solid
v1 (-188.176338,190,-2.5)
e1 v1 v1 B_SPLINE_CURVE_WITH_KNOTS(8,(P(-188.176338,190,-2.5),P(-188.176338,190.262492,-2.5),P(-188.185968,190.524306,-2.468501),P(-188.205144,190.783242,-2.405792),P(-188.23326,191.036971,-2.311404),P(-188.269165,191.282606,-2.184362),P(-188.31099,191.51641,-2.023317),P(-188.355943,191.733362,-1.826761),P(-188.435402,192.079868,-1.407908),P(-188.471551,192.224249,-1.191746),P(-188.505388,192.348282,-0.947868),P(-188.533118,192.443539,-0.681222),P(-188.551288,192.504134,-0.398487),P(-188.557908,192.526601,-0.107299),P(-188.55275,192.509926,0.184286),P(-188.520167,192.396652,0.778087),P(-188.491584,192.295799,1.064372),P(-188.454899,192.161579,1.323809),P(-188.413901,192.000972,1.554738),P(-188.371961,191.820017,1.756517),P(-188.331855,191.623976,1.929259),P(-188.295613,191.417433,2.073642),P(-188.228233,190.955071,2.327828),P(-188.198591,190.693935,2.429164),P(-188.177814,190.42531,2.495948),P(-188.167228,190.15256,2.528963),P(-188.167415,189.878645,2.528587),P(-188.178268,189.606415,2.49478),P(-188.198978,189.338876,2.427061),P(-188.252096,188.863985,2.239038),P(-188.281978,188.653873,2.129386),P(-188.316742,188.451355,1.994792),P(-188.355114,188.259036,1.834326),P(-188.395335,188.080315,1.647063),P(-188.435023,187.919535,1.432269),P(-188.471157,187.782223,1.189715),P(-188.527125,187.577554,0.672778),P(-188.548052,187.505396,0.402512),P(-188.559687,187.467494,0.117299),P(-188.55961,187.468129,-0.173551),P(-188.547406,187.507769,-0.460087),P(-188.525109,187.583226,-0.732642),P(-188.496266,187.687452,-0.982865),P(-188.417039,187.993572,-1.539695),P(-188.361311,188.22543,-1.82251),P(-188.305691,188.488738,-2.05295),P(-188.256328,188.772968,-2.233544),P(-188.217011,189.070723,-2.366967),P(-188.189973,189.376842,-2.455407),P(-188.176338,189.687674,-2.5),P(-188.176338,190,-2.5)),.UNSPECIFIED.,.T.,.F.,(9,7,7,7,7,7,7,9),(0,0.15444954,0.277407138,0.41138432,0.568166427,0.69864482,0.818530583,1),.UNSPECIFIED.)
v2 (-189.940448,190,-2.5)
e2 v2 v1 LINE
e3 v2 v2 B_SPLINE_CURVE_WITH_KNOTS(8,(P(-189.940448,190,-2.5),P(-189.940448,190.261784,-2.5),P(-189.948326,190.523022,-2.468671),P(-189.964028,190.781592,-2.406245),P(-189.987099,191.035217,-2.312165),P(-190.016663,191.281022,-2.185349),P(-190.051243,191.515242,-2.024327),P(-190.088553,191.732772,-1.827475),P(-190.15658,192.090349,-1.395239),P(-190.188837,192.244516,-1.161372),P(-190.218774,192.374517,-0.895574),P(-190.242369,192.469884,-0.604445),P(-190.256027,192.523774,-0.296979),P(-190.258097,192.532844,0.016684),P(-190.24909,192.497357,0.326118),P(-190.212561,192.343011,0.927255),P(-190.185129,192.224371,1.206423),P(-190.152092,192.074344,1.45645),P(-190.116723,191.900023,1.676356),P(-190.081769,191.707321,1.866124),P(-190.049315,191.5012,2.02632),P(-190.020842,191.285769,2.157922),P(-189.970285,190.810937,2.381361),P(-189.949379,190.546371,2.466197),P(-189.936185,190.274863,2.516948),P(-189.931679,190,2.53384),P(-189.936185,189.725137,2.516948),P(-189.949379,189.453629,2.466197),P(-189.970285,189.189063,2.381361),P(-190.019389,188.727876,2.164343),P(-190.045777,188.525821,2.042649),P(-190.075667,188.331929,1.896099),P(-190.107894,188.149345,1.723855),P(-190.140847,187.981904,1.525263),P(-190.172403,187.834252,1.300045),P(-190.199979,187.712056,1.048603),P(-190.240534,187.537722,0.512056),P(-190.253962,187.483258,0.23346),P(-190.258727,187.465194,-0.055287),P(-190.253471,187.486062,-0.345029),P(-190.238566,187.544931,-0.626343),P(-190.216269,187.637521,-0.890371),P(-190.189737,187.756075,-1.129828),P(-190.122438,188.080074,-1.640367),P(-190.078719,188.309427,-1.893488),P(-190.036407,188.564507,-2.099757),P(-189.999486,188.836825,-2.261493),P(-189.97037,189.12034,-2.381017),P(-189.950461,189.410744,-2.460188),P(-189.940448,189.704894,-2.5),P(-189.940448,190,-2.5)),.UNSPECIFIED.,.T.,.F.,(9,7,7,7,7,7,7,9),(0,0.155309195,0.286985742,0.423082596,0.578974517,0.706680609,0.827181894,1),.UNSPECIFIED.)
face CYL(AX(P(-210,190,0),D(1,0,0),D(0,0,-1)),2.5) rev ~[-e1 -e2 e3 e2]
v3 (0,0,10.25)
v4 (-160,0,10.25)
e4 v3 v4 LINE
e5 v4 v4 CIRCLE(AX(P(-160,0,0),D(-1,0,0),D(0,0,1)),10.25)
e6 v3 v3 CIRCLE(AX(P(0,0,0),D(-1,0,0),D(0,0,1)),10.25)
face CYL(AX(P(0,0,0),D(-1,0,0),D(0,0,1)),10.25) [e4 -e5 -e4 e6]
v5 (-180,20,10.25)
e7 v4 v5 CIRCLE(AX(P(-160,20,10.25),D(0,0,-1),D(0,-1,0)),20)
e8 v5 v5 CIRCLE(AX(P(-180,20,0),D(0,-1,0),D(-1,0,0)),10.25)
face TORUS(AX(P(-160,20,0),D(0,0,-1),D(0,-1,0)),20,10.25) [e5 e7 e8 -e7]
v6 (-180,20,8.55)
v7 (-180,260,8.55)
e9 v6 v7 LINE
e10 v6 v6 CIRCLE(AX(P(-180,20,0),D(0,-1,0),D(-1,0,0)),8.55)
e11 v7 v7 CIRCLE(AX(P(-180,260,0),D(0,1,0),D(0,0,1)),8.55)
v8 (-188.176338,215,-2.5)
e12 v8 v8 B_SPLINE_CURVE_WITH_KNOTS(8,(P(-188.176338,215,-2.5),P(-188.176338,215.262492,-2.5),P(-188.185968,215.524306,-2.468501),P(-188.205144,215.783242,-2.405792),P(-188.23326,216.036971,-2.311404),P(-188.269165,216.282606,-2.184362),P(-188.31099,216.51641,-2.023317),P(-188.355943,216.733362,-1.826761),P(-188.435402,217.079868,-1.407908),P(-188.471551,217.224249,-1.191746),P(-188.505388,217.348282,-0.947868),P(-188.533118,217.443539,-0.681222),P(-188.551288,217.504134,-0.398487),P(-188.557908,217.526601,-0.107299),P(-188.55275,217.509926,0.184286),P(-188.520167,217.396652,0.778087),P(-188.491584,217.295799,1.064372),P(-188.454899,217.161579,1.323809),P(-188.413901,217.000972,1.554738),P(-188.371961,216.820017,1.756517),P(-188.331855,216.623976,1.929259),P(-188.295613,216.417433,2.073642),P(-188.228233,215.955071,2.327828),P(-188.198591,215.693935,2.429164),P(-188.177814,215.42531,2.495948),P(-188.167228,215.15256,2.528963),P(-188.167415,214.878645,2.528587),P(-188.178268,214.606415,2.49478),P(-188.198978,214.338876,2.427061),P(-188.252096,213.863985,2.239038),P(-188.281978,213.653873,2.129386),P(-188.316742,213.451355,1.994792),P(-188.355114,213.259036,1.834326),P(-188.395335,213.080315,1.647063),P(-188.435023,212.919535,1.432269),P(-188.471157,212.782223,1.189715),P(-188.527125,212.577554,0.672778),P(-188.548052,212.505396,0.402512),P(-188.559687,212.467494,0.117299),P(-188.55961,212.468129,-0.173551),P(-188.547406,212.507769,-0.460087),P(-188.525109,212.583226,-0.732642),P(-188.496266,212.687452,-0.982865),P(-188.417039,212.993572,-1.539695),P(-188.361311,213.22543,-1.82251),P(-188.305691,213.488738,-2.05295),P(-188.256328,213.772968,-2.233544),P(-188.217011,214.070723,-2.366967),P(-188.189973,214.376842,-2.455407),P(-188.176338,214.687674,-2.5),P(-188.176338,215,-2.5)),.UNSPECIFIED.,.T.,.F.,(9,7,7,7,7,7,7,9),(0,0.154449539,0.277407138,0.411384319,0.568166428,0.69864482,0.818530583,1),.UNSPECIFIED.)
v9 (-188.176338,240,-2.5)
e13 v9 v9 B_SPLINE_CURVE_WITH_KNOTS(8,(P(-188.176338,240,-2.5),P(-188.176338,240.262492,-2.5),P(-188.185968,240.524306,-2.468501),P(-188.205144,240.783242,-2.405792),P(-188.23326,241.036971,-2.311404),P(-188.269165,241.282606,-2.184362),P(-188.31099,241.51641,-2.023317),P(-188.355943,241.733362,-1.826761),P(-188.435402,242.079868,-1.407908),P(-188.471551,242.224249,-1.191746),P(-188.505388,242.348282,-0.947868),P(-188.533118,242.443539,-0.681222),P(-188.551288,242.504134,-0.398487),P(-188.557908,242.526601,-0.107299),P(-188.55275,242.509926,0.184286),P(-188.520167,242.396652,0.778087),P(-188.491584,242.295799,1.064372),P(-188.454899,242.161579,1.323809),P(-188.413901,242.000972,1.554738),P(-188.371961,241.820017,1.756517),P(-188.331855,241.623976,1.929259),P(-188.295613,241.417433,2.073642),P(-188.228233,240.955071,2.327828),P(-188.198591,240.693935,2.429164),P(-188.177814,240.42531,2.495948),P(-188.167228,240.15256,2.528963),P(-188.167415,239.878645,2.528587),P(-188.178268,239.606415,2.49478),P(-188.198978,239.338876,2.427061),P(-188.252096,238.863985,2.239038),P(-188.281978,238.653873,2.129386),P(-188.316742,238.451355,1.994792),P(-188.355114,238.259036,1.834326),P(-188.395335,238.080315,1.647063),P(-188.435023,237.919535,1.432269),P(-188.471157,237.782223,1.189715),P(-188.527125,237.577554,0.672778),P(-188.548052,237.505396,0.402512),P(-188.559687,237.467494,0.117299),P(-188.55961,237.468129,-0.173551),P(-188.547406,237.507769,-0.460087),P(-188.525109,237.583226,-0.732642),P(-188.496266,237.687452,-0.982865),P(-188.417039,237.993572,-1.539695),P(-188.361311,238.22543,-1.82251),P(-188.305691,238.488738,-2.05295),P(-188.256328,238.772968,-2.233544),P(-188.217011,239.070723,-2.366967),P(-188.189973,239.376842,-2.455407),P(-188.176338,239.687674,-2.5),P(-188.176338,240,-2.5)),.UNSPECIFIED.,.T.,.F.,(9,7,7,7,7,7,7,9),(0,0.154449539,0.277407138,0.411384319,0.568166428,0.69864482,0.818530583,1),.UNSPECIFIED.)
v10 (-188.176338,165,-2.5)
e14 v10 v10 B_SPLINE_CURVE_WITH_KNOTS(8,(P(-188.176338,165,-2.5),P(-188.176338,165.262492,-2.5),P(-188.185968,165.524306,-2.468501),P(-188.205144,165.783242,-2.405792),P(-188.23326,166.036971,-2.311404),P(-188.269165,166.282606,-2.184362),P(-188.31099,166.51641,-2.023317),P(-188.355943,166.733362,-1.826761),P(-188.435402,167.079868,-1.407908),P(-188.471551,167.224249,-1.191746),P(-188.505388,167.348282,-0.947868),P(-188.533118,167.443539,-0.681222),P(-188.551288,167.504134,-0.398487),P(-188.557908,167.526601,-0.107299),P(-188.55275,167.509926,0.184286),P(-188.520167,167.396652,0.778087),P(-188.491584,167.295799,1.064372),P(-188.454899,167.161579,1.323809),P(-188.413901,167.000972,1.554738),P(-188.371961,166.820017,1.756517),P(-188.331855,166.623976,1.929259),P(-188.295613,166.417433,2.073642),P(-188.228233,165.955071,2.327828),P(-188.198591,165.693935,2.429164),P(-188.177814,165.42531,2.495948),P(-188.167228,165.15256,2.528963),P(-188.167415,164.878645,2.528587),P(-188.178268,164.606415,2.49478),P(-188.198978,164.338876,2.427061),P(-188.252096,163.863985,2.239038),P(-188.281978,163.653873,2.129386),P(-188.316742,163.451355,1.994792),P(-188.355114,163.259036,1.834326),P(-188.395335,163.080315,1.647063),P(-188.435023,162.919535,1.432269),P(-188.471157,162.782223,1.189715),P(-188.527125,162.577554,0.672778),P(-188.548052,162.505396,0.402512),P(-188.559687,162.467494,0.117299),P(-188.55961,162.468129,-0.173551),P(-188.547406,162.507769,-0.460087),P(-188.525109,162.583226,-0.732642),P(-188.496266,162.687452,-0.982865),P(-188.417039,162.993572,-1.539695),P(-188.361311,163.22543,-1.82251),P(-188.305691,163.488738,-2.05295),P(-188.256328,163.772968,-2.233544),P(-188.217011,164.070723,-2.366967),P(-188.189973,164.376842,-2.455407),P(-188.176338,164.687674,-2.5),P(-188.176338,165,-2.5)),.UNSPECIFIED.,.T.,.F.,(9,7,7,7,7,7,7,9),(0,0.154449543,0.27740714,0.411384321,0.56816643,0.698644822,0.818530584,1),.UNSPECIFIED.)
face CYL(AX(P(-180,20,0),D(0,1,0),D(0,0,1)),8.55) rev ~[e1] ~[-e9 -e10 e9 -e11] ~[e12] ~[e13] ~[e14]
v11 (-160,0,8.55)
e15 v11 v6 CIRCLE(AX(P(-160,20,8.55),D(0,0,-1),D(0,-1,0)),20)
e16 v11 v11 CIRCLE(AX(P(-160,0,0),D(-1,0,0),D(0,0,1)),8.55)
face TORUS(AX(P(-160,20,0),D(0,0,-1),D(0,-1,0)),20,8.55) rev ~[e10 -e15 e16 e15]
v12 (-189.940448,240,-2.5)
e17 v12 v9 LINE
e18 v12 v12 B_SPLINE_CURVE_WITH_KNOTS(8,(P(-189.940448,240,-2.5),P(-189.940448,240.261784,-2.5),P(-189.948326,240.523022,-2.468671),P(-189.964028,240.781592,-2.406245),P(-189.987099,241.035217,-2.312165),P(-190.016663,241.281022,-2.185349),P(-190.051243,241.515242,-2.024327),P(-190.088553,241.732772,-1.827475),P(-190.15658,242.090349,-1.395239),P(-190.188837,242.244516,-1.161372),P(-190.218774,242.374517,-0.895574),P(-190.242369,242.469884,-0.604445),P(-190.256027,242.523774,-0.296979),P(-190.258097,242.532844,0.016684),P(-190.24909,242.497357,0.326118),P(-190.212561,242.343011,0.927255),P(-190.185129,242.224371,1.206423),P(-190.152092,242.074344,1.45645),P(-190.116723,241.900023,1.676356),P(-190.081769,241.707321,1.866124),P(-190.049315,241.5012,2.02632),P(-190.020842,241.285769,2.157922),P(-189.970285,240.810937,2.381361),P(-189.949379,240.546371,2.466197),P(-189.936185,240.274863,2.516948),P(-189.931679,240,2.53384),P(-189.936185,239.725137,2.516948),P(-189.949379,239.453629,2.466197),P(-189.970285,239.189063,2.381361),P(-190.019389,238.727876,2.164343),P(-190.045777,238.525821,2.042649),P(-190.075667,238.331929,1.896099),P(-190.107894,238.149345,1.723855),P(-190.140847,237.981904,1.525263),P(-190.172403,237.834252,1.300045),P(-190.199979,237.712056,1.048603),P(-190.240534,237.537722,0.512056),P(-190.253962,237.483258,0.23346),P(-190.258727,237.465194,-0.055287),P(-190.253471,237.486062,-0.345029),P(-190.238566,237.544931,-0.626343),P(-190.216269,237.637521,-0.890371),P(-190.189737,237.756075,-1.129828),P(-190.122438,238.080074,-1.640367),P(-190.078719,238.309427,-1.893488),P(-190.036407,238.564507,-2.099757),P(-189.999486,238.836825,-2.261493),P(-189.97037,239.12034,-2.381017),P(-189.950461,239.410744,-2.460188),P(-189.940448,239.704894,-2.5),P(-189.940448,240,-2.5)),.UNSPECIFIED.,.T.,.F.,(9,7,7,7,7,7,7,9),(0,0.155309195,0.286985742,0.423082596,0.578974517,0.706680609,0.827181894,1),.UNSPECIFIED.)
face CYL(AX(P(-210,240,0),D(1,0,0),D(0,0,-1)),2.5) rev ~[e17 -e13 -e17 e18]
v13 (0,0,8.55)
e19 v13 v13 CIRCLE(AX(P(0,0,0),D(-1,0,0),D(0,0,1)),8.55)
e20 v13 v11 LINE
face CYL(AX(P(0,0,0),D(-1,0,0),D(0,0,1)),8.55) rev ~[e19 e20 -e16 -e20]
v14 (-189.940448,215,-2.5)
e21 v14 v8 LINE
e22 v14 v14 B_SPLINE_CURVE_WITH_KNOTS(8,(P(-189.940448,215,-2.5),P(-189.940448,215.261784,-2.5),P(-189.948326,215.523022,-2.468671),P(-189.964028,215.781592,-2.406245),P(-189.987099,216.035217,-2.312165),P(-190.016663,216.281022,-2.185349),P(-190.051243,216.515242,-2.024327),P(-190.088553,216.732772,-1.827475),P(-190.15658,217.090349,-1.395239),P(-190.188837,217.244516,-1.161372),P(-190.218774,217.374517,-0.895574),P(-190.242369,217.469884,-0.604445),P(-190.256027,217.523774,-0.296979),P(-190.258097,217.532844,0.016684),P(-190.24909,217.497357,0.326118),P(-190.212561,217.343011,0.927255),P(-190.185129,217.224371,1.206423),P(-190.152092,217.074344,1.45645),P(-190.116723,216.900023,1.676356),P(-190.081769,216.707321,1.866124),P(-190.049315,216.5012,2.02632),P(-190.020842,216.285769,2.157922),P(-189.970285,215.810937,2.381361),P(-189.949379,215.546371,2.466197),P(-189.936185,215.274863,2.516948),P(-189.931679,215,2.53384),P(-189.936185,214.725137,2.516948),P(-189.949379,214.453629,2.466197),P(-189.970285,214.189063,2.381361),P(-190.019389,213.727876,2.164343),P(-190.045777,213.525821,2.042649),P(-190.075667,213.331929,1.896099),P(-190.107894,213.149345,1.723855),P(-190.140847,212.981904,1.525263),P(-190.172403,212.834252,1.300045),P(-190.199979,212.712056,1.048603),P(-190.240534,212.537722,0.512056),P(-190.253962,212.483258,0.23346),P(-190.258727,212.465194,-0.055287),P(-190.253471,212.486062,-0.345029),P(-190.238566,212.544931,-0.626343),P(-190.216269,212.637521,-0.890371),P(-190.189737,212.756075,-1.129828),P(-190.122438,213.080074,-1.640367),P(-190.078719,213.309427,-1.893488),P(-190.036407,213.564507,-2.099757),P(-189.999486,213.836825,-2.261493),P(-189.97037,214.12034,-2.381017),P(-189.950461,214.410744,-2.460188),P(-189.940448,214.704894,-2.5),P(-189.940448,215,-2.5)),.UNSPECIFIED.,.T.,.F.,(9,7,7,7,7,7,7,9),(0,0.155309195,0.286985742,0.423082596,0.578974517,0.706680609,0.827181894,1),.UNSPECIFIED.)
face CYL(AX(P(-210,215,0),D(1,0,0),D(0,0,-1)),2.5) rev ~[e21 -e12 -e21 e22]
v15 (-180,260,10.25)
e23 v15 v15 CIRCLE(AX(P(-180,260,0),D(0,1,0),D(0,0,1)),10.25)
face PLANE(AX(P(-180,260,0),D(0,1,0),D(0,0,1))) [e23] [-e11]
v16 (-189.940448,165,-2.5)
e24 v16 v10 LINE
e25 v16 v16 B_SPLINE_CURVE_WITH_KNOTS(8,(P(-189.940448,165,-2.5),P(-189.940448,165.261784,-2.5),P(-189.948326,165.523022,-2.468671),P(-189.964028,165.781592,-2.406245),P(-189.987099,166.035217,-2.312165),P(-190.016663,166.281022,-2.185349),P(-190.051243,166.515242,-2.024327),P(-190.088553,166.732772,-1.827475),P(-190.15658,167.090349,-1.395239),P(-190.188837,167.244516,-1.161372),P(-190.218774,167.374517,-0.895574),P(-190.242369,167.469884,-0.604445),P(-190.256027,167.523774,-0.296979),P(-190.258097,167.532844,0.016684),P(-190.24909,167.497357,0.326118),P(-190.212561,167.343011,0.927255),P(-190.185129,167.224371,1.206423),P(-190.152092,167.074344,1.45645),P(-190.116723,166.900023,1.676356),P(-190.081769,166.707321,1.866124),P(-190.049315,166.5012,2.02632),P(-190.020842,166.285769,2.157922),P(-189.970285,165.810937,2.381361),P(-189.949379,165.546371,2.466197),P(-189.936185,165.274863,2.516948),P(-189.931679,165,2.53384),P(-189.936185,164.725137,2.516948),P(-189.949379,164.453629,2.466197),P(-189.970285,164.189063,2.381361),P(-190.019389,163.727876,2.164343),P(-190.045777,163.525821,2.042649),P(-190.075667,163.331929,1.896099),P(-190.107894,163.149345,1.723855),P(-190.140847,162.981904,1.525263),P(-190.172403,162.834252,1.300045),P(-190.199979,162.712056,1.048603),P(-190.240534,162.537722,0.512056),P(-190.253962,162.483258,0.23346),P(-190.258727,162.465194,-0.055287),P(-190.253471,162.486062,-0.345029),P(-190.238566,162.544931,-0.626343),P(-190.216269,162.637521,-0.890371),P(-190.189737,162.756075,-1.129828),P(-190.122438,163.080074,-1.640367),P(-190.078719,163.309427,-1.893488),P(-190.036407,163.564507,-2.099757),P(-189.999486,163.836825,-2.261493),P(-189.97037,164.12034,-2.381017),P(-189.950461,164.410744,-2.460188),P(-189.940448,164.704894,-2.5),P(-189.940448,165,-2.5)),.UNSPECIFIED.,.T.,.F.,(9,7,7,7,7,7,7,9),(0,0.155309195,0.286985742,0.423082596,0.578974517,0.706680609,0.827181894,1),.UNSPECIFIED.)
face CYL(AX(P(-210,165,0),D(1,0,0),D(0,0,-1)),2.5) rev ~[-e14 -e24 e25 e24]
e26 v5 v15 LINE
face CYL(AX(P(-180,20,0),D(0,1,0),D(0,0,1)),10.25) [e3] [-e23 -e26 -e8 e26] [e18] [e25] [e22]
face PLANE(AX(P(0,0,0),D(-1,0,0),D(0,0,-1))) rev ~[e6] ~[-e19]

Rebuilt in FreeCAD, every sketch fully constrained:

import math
import FreeCAD as App
import Part
import Sketcher
Q = App.Units.Quantity

doc = App.newDocument("Part")
body = doc.addObject("PartDesign::Body", "Body")

# Sketch on YZ plane
sketch1 = doc.addObject("Sketcher::SketchObject", "Sketch")
body.addObject(sketch1)
sketch1.AttachmentSupport = (doc.YZ_Plane, [""])
sketch1.MapMode = "FlatFace"
sketch1.addGeometry([
    Part.Circle(App.Vector(0, 0, 0), App.Vector(0, 0, 1), 10),
    Part.Circle(App.Vector(0, 0, 0), App.Vector(0, 0, 1), 9),
], False)
sketch1.addConstraint([
    Sketcher.Constraint("Coincident", 0, 3, -1, 1),
    Sketcher.Constraint("Coincident", 1, 3, -1, 1),
    Sketcher.Constraint("Diameter", 0, Q("20.5 mm")),
    Sketcher.Constraint("Diameter", 1, Q("17.1 mm")),
])

# Sketch on XY plane
sketch2 = doc.addObject("Sketcher::SketchObject", "Sketch001")
body.addObject(sketch2)
sketch2.AttachmentSupport = (doc.XY_Plane, [""])
sketch2.MapMode = "FlatFace"
sketch2.addGeometry([
    Part.LineSegment(App.Vector(0, 0, 0), App.Vector(-160, 0, 0)),
    Part.ArcOfCircle(Part.Circle(App.Vector(-160, 20, 0), App.Vector(0, 0, 1), 20), math.radians(180), math.radians(270)),
    Part.LineSegment(App.Vector(-180, 20, 0), App.Vector(-180, 260, 0)),
], False)
sketch2.addConstraint([
    Sketcher.Constraint("Tangent", 0, 2, 1, 2),
    Sketcher.Constraint("Tangent", 1, 1, 2, 1),
    Sketcher.Constraint("Horizontal", 0),
    Sketcher.Constraint("Vertical", 2),
    Sketcher.Constraint("Coincident", 0, 1, -1, 1),
    Sketcher.Constraint("Radius", 1, Q("20 mm")),
    Sketcher.Constraint("DistanceX", 0, 2, 0, 1, Q("160 mm")),
    Sketcher.Constraint("DistanceY", 2, 1, 2, 2, Q("240 mm")),
])
doc.recompute()

additivepipe = doc.addObject("PartDesign::AdditivePipe", "AdditivePipe")
body.addObject(additivepipe)
additivepipe.Profile = sketch1
additivepipe.Spine = (sketch2, ["Edge1", "Edge2", "Edge3"])

# Sketch on YZ plane
sketch3 = doc.addObject("Sketcher::SketchObject", "Sketch002")
body.addObject(sketch3)
sketch3.AttachmentSupport = (doc.YZ_Plane, [""])
sketch3.MapMode = "FlatFace"
sketch3.AttachmentOffset = App.Placement(App.Vector(0, 0, -195), App.Rotation())
sketch3.addGeometry([
    Part.Circle(App.Vector(240, 0, 0), App.Vector(0, 0, 1), 2.5),
    Part.Circle(App.Vector(215, 0, 0), App.Vector(0, 0, 1), 2.5),
    Part.Circle(App.Vector(190, 0, 0), App.Vector(0, 0, 1), 2.5),
    Part.Circle(App.Vector(165, 0, 0), App.Vector(0, 0, 1), 2.5),
], False)
sketch3.addConstraint([
    Sketcher.Constraint("Equal", 0, 1),
    Sketcher.Constraint("Equal", 1, 2),
    Sketcher.Constraint("Equal", 2, 3),
    Sketcher.Constraint("PointOnObject", 0, 3, -1),
    Sketcher.Constraint("PointOnObject", 1, 3, -1),
    Sketcher.Constraint("PointOnObject", 2, 3, -1),
    Sketcher.Constraint("PointOnObject", 3, 3, -1),
    Sketcher.Constraint("Diameter", 0, Q("5 mm")),
    Sketcher.Constraint("DistanceX", -1, 1, 0, 3, Q("240 mm")),
    Sketcher.Constraint("DistanceX", -1, 1, 1, 3, Q("215 mm")),
    Sketcher.Constraint("DistanceX", -1, 1, 2, 3, Q("190 mm")),
    Sketcher.Constraint("DistanceX", -1, 1, 3, 3, Q("165 mm")),
])
doc.recompute()
hole = doc.addObject("PartDesign::Hole", "Hole")
body.addObject(hole)
hole.Profile = sketch3
hole.ThreadType = "None"
hole.Diameter = 5
hole.DepthType = "Dimension"
hole.Depth = 15
hole.DrillPoint = "Angled"
hole.DrillPointAngle = 118
hole.Reversed = True

doc.recompute()
